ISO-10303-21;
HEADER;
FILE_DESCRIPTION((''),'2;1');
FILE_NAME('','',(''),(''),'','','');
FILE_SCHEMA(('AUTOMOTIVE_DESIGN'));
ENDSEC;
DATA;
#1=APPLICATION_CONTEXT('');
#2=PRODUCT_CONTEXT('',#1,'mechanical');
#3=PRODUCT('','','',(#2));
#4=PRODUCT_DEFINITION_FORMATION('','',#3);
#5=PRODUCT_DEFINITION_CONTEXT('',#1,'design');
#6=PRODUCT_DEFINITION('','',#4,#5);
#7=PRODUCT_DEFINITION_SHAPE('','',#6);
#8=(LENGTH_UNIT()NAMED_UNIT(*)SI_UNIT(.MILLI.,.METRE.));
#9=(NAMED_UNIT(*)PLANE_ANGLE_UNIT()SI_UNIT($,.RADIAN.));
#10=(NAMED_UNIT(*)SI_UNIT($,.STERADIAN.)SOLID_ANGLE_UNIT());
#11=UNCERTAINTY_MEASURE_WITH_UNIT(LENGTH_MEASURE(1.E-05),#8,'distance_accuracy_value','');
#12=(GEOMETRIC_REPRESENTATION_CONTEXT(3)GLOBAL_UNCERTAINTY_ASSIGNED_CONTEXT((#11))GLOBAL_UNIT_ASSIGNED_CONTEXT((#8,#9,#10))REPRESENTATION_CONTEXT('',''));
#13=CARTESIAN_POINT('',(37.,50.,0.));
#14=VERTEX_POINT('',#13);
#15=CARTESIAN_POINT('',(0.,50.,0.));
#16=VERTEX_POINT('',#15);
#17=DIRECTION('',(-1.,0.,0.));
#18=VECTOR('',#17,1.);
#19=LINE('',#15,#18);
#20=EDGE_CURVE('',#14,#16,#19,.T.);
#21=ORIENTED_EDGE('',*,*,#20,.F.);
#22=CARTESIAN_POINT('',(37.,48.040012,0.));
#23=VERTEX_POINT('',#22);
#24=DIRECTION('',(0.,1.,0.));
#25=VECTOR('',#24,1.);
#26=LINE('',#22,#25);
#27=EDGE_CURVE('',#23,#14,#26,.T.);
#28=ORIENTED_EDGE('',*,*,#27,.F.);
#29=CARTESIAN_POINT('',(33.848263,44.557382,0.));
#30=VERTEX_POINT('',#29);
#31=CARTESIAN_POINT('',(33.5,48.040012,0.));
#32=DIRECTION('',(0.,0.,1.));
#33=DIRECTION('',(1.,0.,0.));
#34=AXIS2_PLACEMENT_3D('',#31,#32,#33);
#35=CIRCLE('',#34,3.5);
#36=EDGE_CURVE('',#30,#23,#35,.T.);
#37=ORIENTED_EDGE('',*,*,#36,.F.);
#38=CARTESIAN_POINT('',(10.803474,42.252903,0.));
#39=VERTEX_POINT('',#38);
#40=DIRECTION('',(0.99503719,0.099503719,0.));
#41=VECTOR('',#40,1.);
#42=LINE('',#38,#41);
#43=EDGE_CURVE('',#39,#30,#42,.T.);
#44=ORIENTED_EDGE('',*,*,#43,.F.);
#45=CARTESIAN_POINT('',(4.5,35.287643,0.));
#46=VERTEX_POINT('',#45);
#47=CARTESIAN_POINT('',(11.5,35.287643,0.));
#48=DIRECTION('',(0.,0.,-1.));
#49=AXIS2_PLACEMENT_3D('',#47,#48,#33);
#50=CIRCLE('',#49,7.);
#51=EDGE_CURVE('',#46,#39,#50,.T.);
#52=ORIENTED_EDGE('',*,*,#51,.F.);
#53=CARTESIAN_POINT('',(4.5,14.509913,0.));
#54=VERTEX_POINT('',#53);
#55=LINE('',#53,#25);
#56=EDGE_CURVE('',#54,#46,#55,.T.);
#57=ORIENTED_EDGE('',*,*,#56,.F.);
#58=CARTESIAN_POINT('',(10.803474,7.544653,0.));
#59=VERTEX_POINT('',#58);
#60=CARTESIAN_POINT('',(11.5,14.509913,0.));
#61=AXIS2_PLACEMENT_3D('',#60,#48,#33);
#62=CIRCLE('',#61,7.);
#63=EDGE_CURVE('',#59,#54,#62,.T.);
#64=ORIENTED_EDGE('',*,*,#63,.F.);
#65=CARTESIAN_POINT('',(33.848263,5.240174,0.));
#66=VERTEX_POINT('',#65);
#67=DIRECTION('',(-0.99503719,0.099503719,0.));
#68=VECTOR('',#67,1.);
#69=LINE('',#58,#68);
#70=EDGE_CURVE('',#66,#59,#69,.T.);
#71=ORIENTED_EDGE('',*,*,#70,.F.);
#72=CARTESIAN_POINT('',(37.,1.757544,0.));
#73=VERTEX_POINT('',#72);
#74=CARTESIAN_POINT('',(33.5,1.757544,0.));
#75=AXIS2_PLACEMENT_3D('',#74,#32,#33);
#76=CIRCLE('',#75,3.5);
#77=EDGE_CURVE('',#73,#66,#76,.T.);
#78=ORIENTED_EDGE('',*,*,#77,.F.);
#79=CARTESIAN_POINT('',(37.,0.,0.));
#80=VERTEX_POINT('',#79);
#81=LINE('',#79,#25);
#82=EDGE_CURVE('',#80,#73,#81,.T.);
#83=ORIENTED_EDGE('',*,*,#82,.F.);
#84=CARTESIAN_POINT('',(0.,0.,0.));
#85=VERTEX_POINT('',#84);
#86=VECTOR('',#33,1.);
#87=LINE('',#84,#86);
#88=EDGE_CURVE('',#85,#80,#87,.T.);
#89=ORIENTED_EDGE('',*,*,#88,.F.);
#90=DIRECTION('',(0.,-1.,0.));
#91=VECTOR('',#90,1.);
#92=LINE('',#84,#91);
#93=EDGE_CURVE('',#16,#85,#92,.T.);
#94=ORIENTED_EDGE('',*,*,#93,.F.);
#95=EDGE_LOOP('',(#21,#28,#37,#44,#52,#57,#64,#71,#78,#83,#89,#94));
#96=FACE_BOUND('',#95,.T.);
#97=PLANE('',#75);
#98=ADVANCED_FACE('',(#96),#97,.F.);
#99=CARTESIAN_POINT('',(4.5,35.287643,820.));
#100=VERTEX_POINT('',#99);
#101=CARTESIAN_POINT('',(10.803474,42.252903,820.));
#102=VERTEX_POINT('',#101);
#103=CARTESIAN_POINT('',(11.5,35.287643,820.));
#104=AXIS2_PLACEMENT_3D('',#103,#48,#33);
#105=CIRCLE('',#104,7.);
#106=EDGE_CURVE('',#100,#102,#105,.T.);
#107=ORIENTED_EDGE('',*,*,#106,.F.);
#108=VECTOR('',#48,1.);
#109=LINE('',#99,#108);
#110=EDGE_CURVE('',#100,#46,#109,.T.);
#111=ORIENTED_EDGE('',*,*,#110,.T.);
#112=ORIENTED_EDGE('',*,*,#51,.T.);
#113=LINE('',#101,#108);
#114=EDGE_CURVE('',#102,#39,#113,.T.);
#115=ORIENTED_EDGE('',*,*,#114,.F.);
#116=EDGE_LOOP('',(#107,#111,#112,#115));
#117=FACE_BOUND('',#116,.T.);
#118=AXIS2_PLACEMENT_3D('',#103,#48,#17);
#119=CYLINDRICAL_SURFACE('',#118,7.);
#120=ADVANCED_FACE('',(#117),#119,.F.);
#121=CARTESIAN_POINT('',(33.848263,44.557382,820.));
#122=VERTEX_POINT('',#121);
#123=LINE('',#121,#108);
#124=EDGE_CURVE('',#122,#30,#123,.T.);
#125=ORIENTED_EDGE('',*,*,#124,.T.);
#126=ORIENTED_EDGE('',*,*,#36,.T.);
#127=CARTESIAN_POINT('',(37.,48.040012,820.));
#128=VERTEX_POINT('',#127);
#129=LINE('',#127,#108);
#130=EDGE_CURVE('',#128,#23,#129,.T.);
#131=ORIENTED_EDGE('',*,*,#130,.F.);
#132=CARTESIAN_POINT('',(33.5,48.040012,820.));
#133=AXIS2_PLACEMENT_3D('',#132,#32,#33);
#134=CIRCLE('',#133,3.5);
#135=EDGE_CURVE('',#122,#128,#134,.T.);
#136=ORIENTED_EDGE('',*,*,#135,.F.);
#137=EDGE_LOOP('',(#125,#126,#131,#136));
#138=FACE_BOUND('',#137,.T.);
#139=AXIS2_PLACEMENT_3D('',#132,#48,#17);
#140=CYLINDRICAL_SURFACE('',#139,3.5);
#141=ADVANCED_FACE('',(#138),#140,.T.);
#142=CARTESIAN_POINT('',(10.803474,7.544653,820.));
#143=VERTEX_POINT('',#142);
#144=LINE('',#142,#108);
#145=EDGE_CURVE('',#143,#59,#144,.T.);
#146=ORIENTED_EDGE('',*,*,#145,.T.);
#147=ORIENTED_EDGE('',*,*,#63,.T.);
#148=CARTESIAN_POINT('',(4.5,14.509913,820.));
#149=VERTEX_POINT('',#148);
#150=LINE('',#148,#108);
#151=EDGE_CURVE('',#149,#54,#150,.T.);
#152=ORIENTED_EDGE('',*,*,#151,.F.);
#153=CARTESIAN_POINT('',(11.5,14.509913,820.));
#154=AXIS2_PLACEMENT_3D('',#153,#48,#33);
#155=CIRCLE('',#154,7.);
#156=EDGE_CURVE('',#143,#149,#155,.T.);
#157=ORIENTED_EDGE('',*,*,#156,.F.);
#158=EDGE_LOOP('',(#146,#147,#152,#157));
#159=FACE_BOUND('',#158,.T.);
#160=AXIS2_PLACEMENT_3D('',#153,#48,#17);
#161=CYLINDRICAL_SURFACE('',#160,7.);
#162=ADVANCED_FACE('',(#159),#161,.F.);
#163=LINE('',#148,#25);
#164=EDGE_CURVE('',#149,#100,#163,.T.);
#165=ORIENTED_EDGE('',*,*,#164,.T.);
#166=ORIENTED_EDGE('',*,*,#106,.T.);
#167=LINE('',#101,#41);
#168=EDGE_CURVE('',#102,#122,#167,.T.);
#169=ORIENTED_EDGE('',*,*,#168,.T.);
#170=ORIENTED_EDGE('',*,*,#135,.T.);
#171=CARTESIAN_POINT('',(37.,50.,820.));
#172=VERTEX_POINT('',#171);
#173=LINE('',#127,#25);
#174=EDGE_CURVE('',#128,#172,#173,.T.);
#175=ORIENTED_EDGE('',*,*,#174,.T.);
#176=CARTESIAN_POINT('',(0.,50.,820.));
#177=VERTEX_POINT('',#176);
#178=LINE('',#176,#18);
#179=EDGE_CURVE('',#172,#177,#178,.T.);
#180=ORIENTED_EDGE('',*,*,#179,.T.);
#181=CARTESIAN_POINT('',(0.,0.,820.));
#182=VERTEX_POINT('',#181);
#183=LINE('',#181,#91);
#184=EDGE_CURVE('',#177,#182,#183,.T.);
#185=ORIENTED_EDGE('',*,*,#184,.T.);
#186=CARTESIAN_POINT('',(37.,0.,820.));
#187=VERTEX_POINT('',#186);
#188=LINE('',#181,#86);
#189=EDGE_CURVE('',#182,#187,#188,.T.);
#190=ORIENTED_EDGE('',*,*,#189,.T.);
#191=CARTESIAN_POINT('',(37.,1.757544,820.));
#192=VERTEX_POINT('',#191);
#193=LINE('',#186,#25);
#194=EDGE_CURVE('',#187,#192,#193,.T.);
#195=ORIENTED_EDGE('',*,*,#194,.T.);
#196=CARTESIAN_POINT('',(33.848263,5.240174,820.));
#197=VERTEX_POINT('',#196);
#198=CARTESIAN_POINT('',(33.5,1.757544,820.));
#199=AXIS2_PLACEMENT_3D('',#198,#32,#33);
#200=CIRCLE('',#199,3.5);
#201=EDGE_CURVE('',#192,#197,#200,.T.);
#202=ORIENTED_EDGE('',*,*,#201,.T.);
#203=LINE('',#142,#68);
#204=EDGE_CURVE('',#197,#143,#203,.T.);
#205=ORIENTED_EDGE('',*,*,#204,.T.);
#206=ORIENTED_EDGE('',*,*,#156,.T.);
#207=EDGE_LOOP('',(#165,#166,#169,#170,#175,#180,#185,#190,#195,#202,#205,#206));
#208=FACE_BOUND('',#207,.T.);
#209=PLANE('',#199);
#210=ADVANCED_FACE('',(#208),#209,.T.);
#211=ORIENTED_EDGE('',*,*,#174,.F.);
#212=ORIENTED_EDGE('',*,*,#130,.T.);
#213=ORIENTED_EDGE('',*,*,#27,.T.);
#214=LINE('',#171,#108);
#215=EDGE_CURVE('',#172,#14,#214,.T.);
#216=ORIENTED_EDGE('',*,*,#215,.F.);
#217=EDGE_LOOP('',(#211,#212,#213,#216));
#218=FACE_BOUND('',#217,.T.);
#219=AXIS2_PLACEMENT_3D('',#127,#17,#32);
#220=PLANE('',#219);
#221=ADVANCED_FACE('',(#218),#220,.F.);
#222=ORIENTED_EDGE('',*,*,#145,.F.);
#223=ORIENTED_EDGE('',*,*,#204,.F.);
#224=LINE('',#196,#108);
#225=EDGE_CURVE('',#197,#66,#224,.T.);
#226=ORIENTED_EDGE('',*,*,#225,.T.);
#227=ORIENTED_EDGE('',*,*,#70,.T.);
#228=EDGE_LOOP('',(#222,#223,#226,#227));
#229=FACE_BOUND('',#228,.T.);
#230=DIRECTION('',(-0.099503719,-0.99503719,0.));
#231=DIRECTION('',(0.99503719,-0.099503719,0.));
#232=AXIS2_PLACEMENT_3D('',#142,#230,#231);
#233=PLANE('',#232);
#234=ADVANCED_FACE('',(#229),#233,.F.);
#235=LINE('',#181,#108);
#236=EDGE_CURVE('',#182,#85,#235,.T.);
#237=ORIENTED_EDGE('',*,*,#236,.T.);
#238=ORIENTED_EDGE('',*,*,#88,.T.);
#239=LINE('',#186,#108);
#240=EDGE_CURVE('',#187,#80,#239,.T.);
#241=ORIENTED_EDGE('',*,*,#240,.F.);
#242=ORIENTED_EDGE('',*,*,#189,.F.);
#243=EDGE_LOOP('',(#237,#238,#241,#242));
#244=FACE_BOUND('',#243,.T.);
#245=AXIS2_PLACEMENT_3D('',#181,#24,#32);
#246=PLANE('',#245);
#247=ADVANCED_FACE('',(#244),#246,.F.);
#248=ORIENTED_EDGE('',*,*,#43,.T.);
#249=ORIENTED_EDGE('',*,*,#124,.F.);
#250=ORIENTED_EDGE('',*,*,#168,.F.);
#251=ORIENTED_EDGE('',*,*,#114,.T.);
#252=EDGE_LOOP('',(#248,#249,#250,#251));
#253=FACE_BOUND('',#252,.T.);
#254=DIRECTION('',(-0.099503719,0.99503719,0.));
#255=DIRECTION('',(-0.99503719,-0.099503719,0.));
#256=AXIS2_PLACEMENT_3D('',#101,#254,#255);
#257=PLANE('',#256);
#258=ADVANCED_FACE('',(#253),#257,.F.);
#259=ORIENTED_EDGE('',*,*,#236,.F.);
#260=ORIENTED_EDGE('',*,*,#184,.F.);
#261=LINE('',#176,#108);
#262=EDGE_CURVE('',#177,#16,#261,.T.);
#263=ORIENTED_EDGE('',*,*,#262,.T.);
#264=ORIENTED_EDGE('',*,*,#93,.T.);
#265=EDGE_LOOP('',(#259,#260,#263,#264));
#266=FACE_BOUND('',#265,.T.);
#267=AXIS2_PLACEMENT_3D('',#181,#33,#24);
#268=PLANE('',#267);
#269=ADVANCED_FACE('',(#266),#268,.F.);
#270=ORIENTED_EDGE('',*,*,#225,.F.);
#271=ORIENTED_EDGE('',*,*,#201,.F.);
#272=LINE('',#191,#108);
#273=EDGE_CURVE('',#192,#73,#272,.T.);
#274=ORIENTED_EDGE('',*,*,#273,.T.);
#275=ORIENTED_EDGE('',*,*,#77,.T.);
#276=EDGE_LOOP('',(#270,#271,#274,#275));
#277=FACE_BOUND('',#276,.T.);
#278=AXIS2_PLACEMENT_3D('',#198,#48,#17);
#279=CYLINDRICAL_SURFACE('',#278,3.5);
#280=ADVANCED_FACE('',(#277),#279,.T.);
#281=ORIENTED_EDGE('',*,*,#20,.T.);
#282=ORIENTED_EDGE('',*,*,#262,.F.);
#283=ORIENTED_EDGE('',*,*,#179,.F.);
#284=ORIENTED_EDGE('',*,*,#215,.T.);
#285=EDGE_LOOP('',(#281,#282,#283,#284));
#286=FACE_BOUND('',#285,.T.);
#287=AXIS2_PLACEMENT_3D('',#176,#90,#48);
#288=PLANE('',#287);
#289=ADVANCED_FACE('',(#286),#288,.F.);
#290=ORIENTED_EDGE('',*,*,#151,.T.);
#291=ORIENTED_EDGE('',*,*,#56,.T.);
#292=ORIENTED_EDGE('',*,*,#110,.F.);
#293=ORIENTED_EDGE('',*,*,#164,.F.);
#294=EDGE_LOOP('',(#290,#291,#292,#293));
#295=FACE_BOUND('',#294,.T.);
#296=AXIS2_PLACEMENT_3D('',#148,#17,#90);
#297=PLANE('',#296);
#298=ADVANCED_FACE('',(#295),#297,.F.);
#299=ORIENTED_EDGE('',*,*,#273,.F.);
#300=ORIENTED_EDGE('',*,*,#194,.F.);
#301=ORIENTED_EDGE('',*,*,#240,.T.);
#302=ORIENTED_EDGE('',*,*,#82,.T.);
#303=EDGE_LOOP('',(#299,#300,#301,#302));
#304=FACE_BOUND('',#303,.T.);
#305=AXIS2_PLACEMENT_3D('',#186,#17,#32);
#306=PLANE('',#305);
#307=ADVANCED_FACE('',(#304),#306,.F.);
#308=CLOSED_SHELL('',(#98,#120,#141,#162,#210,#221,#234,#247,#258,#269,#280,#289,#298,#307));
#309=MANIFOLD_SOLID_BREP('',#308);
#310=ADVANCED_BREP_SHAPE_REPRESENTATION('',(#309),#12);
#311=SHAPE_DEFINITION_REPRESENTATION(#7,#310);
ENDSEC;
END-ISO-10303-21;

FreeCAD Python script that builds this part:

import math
import FreeCAD as App
import Part
import Sketcher
from FreeCAD import Vector
Q = App.Units.Quantity

doc = App.newDocument("Part")
body = doc.addObject("PartDesign::Body", "Body")

# Sketch on XY plane
sketch1 = doc.addObject("Sketcher::SketchObject", "Sketch")
body.addObject(sketch1)
sketch1.AttachmentSupport = (doc.XY_Plane, [""])
sketch1.MapMode = "FlatFace"
sketch1.addGeometry([
    Part.LineSegment(Vector(0, 50, 0), Vector(0, 0, 0)),  # 0
    Part.LineSegment(Vector(0, 0, 0), Vector(37, 0, 0)),  # 1
    Part.LineSegment(Vector(37, 0, 0), Vector(37, 1.8, 0)),  # 2
    Part.ArcOfCircle(Part.Circle(Vector(33.5, 1.8, 0), Vector(0, 0, 1), 3.5), math.radians(0), math.radians(84)),  # 3
    Part.LineSegment(Vector(33.8, 5.2, 0), Vector(10.8, 7.5, 0)),  # 4
    Part.ArcOfCircle(Part.Circle(Vector(11.5, 14.5, 0), Vector(0, 0, 1), 7), math.radians(180), math.radians(264)),  # 5
    Part.LineSegment(Vector(4.5, 14.5, 0), Vector(4.5, 35.3, 0)),  # 6
    Part.ArcOfCircle(Part.Circle(Vector(11.5, 35.3, 0), Vector(0, 0, 1), 7), math.radians(96), math.radians(180)),  # 7
    Part.LineSegment(Vector(10.8, 42.3, 0), Vector(33.8, 44.6, 0)),  # 8
    Part.ArcOfCircle(Part.Circle(Vector(33.5, 48, 0), Vector(0, 0, 1), 3.5), math.radians(-84), math.radians(0)),  # 9
    Part.LineSegment(Vector(37, 48, 0), Vector(37, 50, 0)),  # 10
    Part.LineSegment(Vector(37, 50, 0), Vector(0, 50, 0)),  # 11
], False)
sketch1.addConstraint([
    Sketcher.Constraint("Coincident", 0, 2, 1, 1),
    Sketcher.Constraint("Coincident", 1, 2, 2, 1),
    Sketcher.Constraint("Tangent", 2, 2, 3, 1),
    Sketcher.Constraint("Tangent", 3, 2, 4, 1),
    Sketcher.Constraint("Tangent", 4, 2, 5, 2),
    Sketcher.Constraint("Tangent", 5, 1, 6, 1),
    Sketcher.Constraint("Tangent", 6, 2, 7, 2),
    Sketcher.Constraint("Tangent", 7, 1, 8, 1),
    Sketcher.Constraint("Tangent", 8, 2, 9, 1),
    Sketcher.Constraint("Tangent", 9, 2, 10, 1),
    Sketcher.Constraint("Coincident", 10, 2, 11, 1),
    Sketcher.Constraint("Coincident", 11, 2, 0, 1),
    Sketcher.Constraint("Vertical", 0),
    Sketcher.Constraint("Horizontal", 1),
    Sketcher.Constraint("Vertical", 2),
    Sketcher.Constraint("Vertical", 6),
    Sketcher.Constraint("Vertical", 10),
    Sketcher.Constraint("Horizontal", 11),
    Sketcher.Constraint("Coincident", 0, 2, -1, 1),
    Sketcher.Constraint("Equal", 5, 7),
    Sketcher.Constraint("Equal", 3, 9),
    Sketcher.Constraint("Vertical", 3, 3, 9, 3),
    Sketcher.Constraint("Vertical", 4, 2, 7, 1),
    Sketcher.Constraint("Radius", 5, Q("7 mm")),
    Sketcher.Constraint("Radius", 3, Q("3.5 mm")),
    Sketcher.Constraint("DistanceX", 1, 1, 1, 2, Q("37 mm")),
    Sketcher.Constraint("DistanceY", 0, 2, 0, 1, Q("50 mm")),
    Sketcher.Constraint("DistanceX", 5, 3, 3, 3, Q("22 mm")),
    Sketcher.Constraint("DistanceY", 6, 1, 6, 2, Q("20.77773 mm")),
    Sketcher.Constraint("DistanceY", 3, 3, 7, 3, Q("33.530099 mm")),
    Sketcher.Constraint("DistanceY", 2, 1, 2, 2, Q("1.757544 mm")),
])
pad1 = doc.addObject("PartDesign::Pad", "Pad")
body.addObject(pad1)
pad1.Profile = sketch1
pad1.Length = 820

doc.recompute()
